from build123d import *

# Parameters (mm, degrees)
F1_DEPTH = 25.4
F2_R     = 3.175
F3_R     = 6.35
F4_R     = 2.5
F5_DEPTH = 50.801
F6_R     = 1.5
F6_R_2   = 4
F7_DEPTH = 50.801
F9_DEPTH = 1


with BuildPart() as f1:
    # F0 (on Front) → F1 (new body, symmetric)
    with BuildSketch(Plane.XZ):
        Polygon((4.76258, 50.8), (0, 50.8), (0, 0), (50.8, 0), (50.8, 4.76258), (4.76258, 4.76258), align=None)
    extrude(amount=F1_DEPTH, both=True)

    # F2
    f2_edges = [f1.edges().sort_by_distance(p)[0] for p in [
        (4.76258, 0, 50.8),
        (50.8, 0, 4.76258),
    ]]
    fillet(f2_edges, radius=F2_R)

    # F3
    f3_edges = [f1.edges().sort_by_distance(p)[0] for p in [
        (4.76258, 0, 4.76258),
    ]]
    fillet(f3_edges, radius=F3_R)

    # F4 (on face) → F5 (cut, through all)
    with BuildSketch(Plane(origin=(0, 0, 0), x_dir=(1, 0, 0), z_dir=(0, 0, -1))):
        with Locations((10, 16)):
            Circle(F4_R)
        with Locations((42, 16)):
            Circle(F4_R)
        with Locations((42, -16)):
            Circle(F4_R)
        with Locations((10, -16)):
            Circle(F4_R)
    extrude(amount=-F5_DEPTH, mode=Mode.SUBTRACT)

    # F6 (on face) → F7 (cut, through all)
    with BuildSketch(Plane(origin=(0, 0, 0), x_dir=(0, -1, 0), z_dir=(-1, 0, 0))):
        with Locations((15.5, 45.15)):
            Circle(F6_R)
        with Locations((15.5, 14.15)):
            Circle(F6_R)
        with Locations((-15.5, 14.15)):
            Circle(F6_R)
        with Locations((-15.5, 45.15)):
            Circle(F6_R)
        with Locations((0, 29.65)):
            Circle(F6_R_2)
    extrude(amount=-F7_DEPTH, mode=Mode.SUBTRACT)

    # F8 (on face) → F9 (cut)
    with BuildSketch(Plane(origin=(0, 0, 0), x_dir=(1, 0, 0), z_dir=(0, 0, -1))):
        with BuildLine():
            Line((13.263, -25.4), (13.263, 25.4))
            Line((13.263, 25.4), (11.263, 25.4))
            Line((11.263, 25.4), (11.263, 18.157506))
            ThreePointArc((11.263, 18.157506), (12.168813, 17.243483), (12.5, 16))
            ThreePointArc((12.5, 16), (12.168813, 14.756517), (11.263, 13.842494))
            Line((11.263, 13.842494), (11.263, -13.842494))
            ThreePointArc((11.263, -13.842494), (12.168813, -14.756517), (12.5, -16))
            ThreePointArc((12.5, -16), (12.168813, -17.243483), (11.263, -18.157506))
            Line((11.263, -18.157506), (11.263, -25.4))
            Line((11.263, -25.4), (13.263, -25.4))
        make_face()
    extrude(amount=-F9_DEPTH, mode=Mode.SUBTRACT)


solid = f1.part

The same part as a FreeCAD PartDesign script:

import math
import FreeCAD as App
import Part
import Sketcher
from FreeCAD import Vector


def edges_at(feature, points):
    """Names of the edges that pass closest to the given points."""
    edges = feature.Shape.Edges
    near = lambda p: min(range(len(edges)), key=lambda i: edges[i].distToShape(Part.Vertex(*p))[0])
    return sorted({f"Edge{near(p) + 1}" for p in points})

doc = App.newDocument("Part")
body = doc.addObject("PartDesign::Body", "Body")

# Sketch on XZ plane
sketch1 = body.newObject("Sketcher::SketchObject", "Sketch")
sketch1.AttachmentSupport = (doc.getObject("XZ_Plane"), [""])
sketch1.MapMode = "FlatFace"
sketch1.addGeometry(Part.LineSegment(Vector(4.76258, 50.8, 0), Vector(0, 50.8, 0)), False)
sketch1.addGeometry(Part.LineSegment(Vector(0, 50.8, 0), Vector(0, 0, 0)), False)
sketch1.addGeometry(Part.LineSegment(Vector(0, 0, 0), Vector(50.8, 0, 0)), False)
sketch1.addGeometry(Part.LineSegment(Vector(50.8, 0, 0), Vector(50.8, 4.76258, 0)), False)
sketch1.addGeometry(Part.LineSegment(Vector(50.8, 4.76258, 0), Vector(4.76258, 4.76258, 0)), False)
sketch1.addGeometry(Part.LineSegment(Vector(4.76258, 4.76258, 0), Vector(4.76258, 50.8, 0)), False)
sketch1.addConstraint(Sketcher.Constraint("Coincident", 0, 2, 1, 1))
sketch1.addConstraint(Sketcher.Constraint("Coincident", 1, 2, 2, 1))
sketch1.addConstraint(Sketcher.Constraint("Coincident", 2, 2, 3, 1))
sketch1.addConstraint(Sketcher.Constraint("Coincident", 3, 2, 4, 1))
sketch1.addConstraint(Sketcher.Constraint("Coincident", 4, 2, 5, 1))
sketch1.addConstraint(Sketcher.Constraint("Coincident", 5, 2, 0, 1))
sketch1.addConstraint(Sketcher.Constraint("Horizontal", 0))
sketch1.addConstraint(Sketcher.Constraint("Vertical", 1))
sketch1.addConstraint(Sketcher.Constraint("Horizontal", 2))
sketch1.addConstraint(Sketcher.Constraint("Vertical", 3))
sketch1.addConstraint(Sketcher.Constraint("Horizontal", 4))
sketch1.addConstraint(Sketcher.Constraint("Vertical", 5))
sketch1.addConstraint(Sketcher.Constraint("Coincident", 1, 2, -1, 1))
sketch1.addConstraint(Sketcher.Constraint("Equal", 2, 1))
sketch1.addConstraint(Sketcher.Constraint("Equal", 0, 3))
sketch1.addConstraint(Sketcher.Constraint("DistanceX", 2, 1, 2, 2, 50.8))
sketch1.addConstraint(Sketcher.Constraint("DistanceX", 0, 2, 0, 1, 4.76258))
pad1 = body.newObject("PartDesign::Pad", "Pad")
pad1.Profile = sketch1
pad1.Length = 50.8
pad1.Midplane = True
doc.recompute()

fillet = body.newObject("PartDesign::Fillet", "Fillet")
fillet.Base = (pad1, edges_at(pad1, [(4.763, 0, 50.8), (50.8, 0, 4.763)]))
fillet.Radius = 3.175
doc.recompute()

fillet2 = body.newObject("PartDesign::Fillet", "Fillet001")
fillet2.Base = (fillet, edges_at(fillet, [(4.763, 0, 4.763)]))
fillet2.Radius = 6.35

# Sketch on XY plane
sketch2 = body.newObject("Sketcher::SketchObject", "Sketch001")
sketch2.AttachmentSupport = (doc.getObject("XY_Plane"), [""])
sketch2.MapMode = "FlatFace"
sketch2.addGeometry(Part.Circle(Vector(10, -16, 0), Vector(0, 0, 1), 2.5), False)
sketch2.addGeometry(Part.Circle(Vector(42, -16, 0), Vector(0, 0, 1), 2.5), False)
sketch2.addGeometry(Part.Circle(Vector(42, 16, 0), Vector(0, 0, 1), 2.5), False)
sketch2.addGeometry(Part.Circle(Vector(10, 16, 0), Vector(0, 0, 1), 2.5), False)
sketch2.addConstraint(Sketcher.Constraint("Equal", 0, 1))
sketch2.addConstraint(Sketcher.Constraint("Equal", 1, 2))
sketch2.addConstraint(Sketcher.Constraint("Equal", 2, 3))
sketch2.addConstraint(Sketcher.Constraint("Symmetric", 1, 3, 2, 3, -1))
sketch2.addConstraint(Sketcher.Constraint("Symmetric", 0, 3, 3, 3, -1))
sketch2.addConstraint(Sketcher.Constraint("Horizontal", 0, 3, 1, 3))
sketch2.addConstraint(Sketcher.Constraint("Diameter", 0, 5.0))
sketch2.addConstraint(Sketcher.Constraint("DistanceX", -1, 1, 0, 3, 10.0))
sketch2.addConstraint(Sketcher.Constraint("DistanceY", 0, 3, -1, 1, 16.0))
sketch2.addConstraint(Sketcher.Constraint("DistanceX", -1, 1, 1, 3, 42.0))
pocket1 = body.newObject("PartDesign::Pocket", "Pocket")
pocket1.Profile = sketch2
pocket1.Type = "ThroughAll"
pocket1.Reversed = True

# Sketch on YZ plane
sketch3 = body.newObject("Sketcher::SketchObject", "Sketch002")
sketch3.AttachmentSupport = (doc.getObject("YZ_Plane"), [""])
sketch3.MapMode = "FlatFace"
sketch3.addGeometry(Part.Circle(Vector(-15.5, 45.15, 0), Vector(0, 0, 1), 1.5), False)
sketch3.addGeometry(Part.Circle(Vector(-15.5, 14.15, 0), Vector(0, 0, 1), 1.5), False)
sketch3.addGeometry(Part.Circle(Vector(15.5, 14.15, 0), Vector(0, 0, 1), 1.5), False)
sketch3.addGeometry(Part.Circle(Vector(15.5, 45.15, 0), Vector(0, 0, 1), 1.5), False)
sketch3.addGeometry(Part.Circle(Vector(0, 29.65, 0), Vector(0, 0, 1), 4), False)
sketch3.addConstraint(Sketcher.Constraint("Equal", 0, 1))
sketch3.addConstraint(Sketcher.Constraint("Equal", 1, 2))
sketch3.addConstraint(Sketcher.Constraint("Equal", 2, 3))
sketch3.addConstraint(Sketcher.Constraint("Symmetric", 1, 3, 2, 3, -2))
sketch3.addConstraint(Sketcher.Constraint("Symmetric", 0, 3, 3, 3, -2))
sketch3.addConstraint(Sketcher.Constraint("PointOnObject", 4, 3, -2))
sketch3.addConstraint(Sketcher.Constraint("Vertical", 0, 3, 1, 3))
sketch3.addConstraint(Sketcher.Constraint("Diameter", 0, 3.0))
sketch3.addConstraint(Sketcher.Constraint("Diameter", 4, 8.0))
sketch3.addConstraint(Sketcher.Constraint("DistanceY", 1, 3, 0, 3, 31.0))
sketch3.addConstraint(Sketcher.Constraint("DistanceX", 1, 3, 2, 3, 31.0))
sketch3.addConstraint(Sketcher.Constraint("DistanceY", 4, 3, 0, 3, 15.5))
sketch3.addConstraint(Sketcher.Constraint("DistanceY", -1, 1, 0, 3, 45.15))
pocket2 = body.newObject("PartDesign::Pocket", "Pocket001")
pocket2.Profile = sketch3
pocket2.Type = "ThroughAll"
pocket2.Reversed = True

# Sketch on XY plane
sketch4 = body.newObject("Sketcher::SketchObject", "Sketch003")
sketch4.AttachmentSupport = (doc.getObject("XY_Plane"), [""])
sketch4.MapMode = "FlatFace"
sketch4.addGeometry(Part.LineSegment(Vector(13.263, 25.4, 0), Vector(13.263, -25.4, 0)), False)
sketch4.addGeometry(Part.LineSegment(Vector(13.263, -25.4, 0), Vector(11.263, -25.4, 0)), False)
sketch4.addGeometry(Part.LineSegment(Vector(11.263, -25.4, 0), Vector(11.263, -18.157506, 0)), False)
sketch4.addGeometry(Part.ArcOfCircle(Part.Circle(Vector(9.999999, -16, 0), Vector(0, 0, 1), 2.500001), math.radians(-59.655356), math.radians(-0.000009)), False)
sketch4.addGeometry(Part.ArcOfCircle(Part.Circle(Vector(9.999999, -16, 0), Vector(0, 0, 1), 2.500001), math.radians(0.000009), math.radians(59.655356)), False)
sketch4.addGeometry(Part.LineSegment(Vector(11.263, -13.842494, 0), Vector(11.263, 13.842494, 0)), False)
sketch4.addGeometry(Part.ArcOfCircle(Part.Circle(Vector(9.999999, 16, 0), Vector(0, 0, 1), 2.500001), math.radians(-59.655356), math.radians(-0.000009)), False)
sketch4.addGeometry(Part.ArcOfCircle(Part.Circle(Vector(9.999999, 16, 0), Vector(0, 0, 1), 2.500001), math.radians(0.000009), math.radians(59.655356)), False)
sketch4.addGeometry(Part.LineSegment(Vector(11.263, 18.157506, 0), Vector(11.263, 25.4, 0)), False)
sketch4.addGeometry(Part.LineSegment(Vector(11.263, 25.4, 0), Vector(13.263, 25.4, 0)), False)
sketch4.addConstraint(Sketcher.Constraint("Coincident", 0, 2, 1, 1))
sketch4.addConstraint(Sketcher.Constraint("Coincident", 1, 2, 2, 1))
sketch4.addConstraint(Sketcher.Constraint("Coincident", 2, 2, 3, 1))
sketch4.addConstraint(Sketcher.Constraint("Tangent", 3, 2, 4, 1))
sketch4.addConstraint(Sketcher.Constraint("Coincident", 4, 2, 5, 1))
sketch4.addConstraint(Sketcher.Constraint("Coincident", 5, 2, 6, 1))
sketch4.addConstraint(Sketcher.Constraint("Tangent", 6, 2, 7, 1))
sketch4.addConstraint(Sketcher.Constraint("Coincident", 7, 2, 8, 1))
sketch4.addConstraint(Sketcher.Constraint("Coincident", 8, 2, 9, 1))
sketch4.addConstraint(Sketcher.Constraint("Coincident", 9, 2, 0, 1))
sketch4.addConstraint(Sketcher.Constraint("Vertical", 0))
sketch4.addConstraint(Sketcher.Constraint("Horizontal", 1))
sketch4.addConstraint(Sketcher.Constraint("Vertical", 2))
sketch4.addConstraint(Sketcher.Constraint("Vertical", 5))
sketch4.addConstraint(Sketcher.Constraint("Vertical", 8))
sketch4.addConstraint(Sketcher.Constraint("Horizontal", 9))
sketch4.addConstraint(Sketcher.Constraint("Equal", 3, 4))
sketch4.addConstraint(Sketcher.Constraint("Equal", 4, 6))
sketch4.addConstraint(Sketcher.Constraint("Equal", 6, 7))
sketch4.addConstraint(Sketcher.Constraint("Symmetric", 3, 3, 6, 3, -1))
sketch4.addConstraint(Sketcher.Constraint("Symmetric", 1, 2, 8, 2, -1))
sketch4.addConstraint(Sketcher.Constraint("Horizontal", 4, 3, 3, 2))
sketch4.addConstraint(Sketcher.Constraint("Horizontal", 7, 3, 6, 2))
sketch4.addConstraint(Sketcher.Constraint("Vertical", 2, 2, 4, 2))
sketch4.addConstraint(Sketcher.Constraint("Radius", 3, 2.500001))
sketch4.addConstraint(Sketcher.Constraint("DistanceX", 1, 2, 1, 1, 2.0))
sketch4.addConstraint(Sketcher.Constraint("DistanceY", 0, 2, 0, 1, 50.8))
sketch4.addConstraint(Sketcher.Constraint("DistanceX", -1, 1, 3, 3, 9.999999))
sketch4.addConstraint(Sketcher.Constraint("DistanceY", 3, 3, -1, 1, 16.0))
sketch4.addConstraint(Sketcher.Constraint("DistanceX", -1, 1, 0, 2, 13.263))
pocket3 = body.newObject("PartDesign::Pocket", "Pocket002")
pocket3.Profile = sketch4
pocket3.Length = 1
pocket3.Reversed = True

doc.recompute()
